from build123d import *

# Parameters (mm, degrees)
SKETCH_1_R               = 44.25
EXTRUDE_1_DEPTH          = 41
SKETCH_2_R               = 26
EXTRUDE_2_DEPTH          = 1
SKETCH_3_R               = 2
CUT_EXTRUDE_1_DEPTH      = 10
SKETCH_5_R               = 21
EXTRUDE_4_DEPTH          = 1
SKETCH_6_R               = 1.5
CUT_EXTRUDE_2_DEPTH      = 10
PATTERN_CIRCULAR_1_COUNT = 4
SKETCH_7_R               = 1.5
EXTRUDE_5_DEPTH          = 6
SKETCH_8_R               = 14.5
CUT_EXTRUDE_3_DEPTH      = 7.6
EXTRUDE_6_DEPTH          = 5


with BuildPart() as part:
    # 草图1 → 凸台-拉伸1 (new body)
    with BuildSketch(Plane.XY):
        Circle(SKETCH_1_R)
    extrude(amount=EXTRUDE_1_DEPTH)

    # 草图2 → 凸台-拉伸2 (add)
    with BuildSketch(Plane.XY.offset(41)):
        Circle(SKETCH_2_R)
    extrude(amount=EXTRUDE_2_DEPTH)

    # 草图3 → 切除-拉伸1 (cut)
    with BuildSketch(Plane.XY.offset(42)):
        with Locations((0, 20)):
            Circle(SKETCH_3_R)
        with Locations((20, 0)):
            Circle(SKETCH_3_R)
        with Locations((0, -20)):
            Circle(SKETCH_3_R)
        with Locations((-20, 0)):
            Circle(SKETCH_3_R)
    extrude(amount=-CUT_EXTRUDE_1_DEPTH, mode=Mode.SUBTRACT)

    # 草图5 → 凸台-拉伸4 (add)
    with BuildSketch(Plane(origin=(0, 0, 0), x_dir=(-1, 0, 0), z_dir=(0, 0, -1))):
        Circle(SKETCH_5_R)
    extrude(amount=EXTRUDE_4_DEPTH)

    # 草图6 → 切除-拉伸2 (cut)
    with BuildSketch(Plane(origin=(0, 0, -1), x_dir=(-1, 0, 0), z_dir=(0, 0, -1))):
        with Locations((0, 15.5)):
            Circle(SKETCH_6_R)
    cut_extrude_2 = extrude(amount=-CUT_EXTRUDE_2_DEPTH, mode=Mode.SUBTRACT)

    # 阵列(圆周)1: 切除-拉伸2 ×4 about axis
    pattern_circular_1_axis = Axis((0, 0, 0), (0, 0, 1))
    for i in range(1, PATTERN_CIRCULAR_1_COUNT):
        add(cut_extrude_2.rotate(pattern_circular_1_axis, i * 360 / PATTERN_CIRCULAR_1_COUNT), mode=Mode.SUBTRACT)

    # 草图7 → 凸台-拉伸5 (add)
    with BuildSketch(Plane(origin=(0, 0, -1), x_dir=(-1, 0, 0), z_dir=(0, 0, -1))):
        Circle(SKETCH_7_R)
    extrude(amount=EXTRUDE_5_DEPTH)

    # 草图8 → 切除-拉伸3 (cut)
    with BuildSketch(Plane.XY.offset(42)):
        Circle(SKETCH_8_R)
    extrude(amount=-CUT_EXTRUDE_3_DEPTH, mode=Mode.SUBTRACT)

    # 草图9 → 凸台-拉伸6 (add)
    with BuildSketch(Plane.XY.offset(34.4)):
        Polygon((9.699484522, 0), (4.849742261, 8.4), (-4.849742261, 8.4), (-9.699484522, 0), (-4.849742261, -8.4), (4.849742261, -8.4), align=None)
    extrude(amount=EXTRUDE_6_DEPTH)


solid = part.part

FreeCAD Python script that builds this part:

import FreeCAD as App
import Part
import Sketcher
Q = App.Units.Quantity


def add_polygon(sketch, points):
    """Adds a closed chain of lines whose ends are joined by coincident constraints."""
    first, n = sketch.GeometryCount, len(points)
    for a, b in zip(points, points[1:] + points[:1]):
        sketch.addGeometry(Part.LineSegment(App.Vector(*a, 0), App.Vector(*b, 0)), False)
    for i in range(n):
        sketch.addConstraint(Sketcher.Constraint("Coincident", first + i, 2, first + (i + 1) % n, 1))

doc = App.newDocument("Part")
params = doc.addObject("Spreadsheet::Sheet", "Params")
for row, (alias, value) in enumerate([
    ("sketch1_diameter", "88.5 mm"),
    ("pad1_length", "41 mm"),
    ("sketch2_diameter", "52 mm"),
    ("pad2_length", "1 mm"),
    ("sketch3_diameter", "4 mm"),
    ("pocket1_length", "10 mm"),
    ("sketch4_diameter", "42 mm"),
    ("pad3_length", "1 mm"),
    ("sketch5_diameter", "3 mm"),
    ("pocket2_length", "10 mm"),
    ("sketch6_diameter", "3 mm"),
    ("pad4_length", "6 mm"),
    ("sketch7_diameter", "29 mm"),
    ("pocket3_length", "7.6 mm"),
    ("pad5_length", "5 mm"),
], start=1):
    params.set(f"A{row}", alias)
    params.set(f"B{row}", "=" + value)
    params.setAlias(f"B{row}", alias)

body = doc.addObject("PartDesign::Body", "Body")

sketch1 = body.newObject("Sketcher::SketchObject", "Sketch")
sketch1.AttachmentSupport = (doc.getObject("XY_Plane"), [""])
sketch1.MapMode = "FlatFace"
sketch1.addGeometry(Part.Circle(App.Vector(0, 0, 0), App.Vector(0, 0, 1), 44), False)
sketch1.addConstraint([
    Sketcher.Constraint("Coincident", 0, 3, -1, 1),
    Sketcher.Constraint("Diameter", 0, 88.5),
])
sketch1.setExpression("Constraints[1]", "Params.sketch1_diameter")
pad1 = body.newObject("PartDesign::Pad", "Pad")
pad1.Profile = sketch1
pad1.setExpression("Length", "Params.pad1_length")

sketch2 = body.newObject("Sketcher::SketchObject", "Sketch001")
sketch2.AttachmentSupport = (doc.getObject("XY_Plane"), [""])
sketch2.MapMode = "FlatFace"
sketch2.AttachmentOffset = App.Placement(App.Vector(0, 0, 41), App.Rotation())
sketch2.addGeometry(Part.Circle(App.Vector(0, 0, 0), App.Vector(0, 0, 1), 26), False)
sketch2.addConstraint([
    Sketcher.Constraint("Coincident", 0, 3, -1, 1),
    Sketcher.Constraint("Diameter", 0, 52.0),
])
sketch2.setExpression("Constraints[1]", "Params.sketch2_diameter")
pad2 = body.newObject("PartDesign::Pad", "Pad001")
pad2.Profile = sketch2
pad2.setExpression("Length", "Params.pad2_length")

sketch3 = body.newObject("Sketcher::SketchObject", "Sketch002")
sketch3.AttachmentSupport = (doc.getObject("XY_Plane"), [""])
sketch3.MapMode = "FlatFace"
sketch3.AttachmentOffset = App.Placement(App.Vector(0, 0, 42), App.Rotation())
sketch3.addGeometry([
    Part.Circle(App.Vector(0, 20, 0), App.Vector(0, 0, 1), 2),
    Part.Circle(App.Vector(20, 0, 0), App.Vector(0, 0, 1), 2),
    Part.Circle(App.Vector(0, -20, 0), App.Vector(0, 0, 1), 2),
    Part.Circle(App.Vector(-20, 0, 0), App.Vector(0, 0, 1), 2),
], False)
sketch3.addConstraint([
    Sketcher.Constraint("Equal", 0, 1),
    Sketcher.Constraint("Equal", 1, 2),
    Sketcher.Constraint("Equal", 2, 3),
    Sketcher.Constraint("Symmetric", 0, 3, 2, 3, -1, 1),
    Sketcher.Constraint("Symmetric", 1, 3, 3, 3, -1, 1),
    Sketcher.Constraint("PointOnObject", 0, 3, -2),
    Sketcher.Constraint("PointOnObject", 1, 3, -1),
    Sketcher.Constraint("Diameter", 0, 4.0),
    Sketcher.Constraint("DistanceY", -1, 1, 0, 3, 20.0),
    Sketcher.Constraint("DistanceX", -1, 1, 1, 3, 20.0),
])
sketch3.setExpression("Constraints[7]", "Params.sketch3_diameter")
pocket1 = body.newObject("PartDesign::Pocket", "Pocket")
pocket1.Profile = sketch3
pocket1.setExpression("Length", "Params.pocket1_length")

sketch4 = body.newObject("Sketcher::SketchObject", "Sketch003")
sketch4.AttachmentSupport = (doc.getObject("XY_Plane"), [""])
sketch4.MapMode = "FlatFace"
sketch4.addGeometry(Part.Circle(App.Vector(0, 0, 0), App.Vector(0, 0, 1), 21), False)
sketch4.addConstraint([
    Sketcher.Constraint("Coincident", 0, 3, -1, 1),
    Sketcher.Constraint("Diameter", 0, 42.0),
])
sketch4.setExpression("Constraints[1]", "Params.sketch4_diameter")
pad3 = body.newObject("PartDesign::Pad", "Pad002")
pad3.Profile = sketch4
pad3.setExpression("Length", "Params.pad3_length")
pad3.Reversed = True

sketch5 = body.newObject("Sketcher::SketchObject", "Sketch004")
sketch5.AttachmentSupport = (doc.getObject("XY_Plane"), [""])
sketch5.MapMode = "FlatFace"
sketch5.AttachmentOffset = App.Placement(App.Vector(0, 0, -1), App.Rotation())
sketch5.addGeometry(Part.Circle(App.Vector(0, 15.5, 0), App.Vector(0, 0, 1), 1.5), False)
sketch5.addConstraint([
    Sketcher.Constraint("PointOnObject", 0, 3, -2),
    Sketcher.Constraint("Diameter", 0, 3.0),
    Sketcher.Constraint("DistanceY", -1, 1, 0, 3, 15.5),
])
sketch5.setExpression("Constraints[1]", "Params.sketch5_diameter")
pocket2 = body.newObject("PartDesign::Pocket", "Pocket001")
pocket2.Profile = sketch5
pocket2.setExpression("Length", "Params.pocket2_length")
pocket2.Reversed = True
doc.recompute()

polarpattern = body.newObject("PartDesign::PolarPattern", "PolarPattern")
polarpattern.Originals = [pocket2]
polarpattern.Axis = (doc.getObject("Z_Axis"), [""])
polarpattern.Angle = 360
polarpattern.Occurrences = 4
body.Tip = polarpattern

sketch6 = body.newObject("Sketcher::SketchObject", "Sketch005")
sketch6.AttachmentSupport = (doc.getObject("XY_Plane"), [""])
sketch6.MapMode = "FlatFace"
sketch6.AttachmentOffset = App.Placement(App.Vector(0, 0, -1), App.Rotation())
sketch6.addGeometry(Part.Circle(App.Vector(0, 0, 0), App.Vector(0, 0, 1), 1.5), False)
sketch6.addConstraint([
    Sketcher.Constraint("Coincident", 0, 3, -1, 1),
    Sketcher.Constraint("Diameter", 0, 3.0),
])
sketch6.setExpression("Constraints[1]", "Params.sketch6_diameter")
pad4 = body.newObject("PartDesign::Pad", "Pad003")
pad4.Profile = sketch6
pad4.setExpression("Length", "Params.pad4_length")
pad4.Reversed = True

sketch7 = body.newObject("Sketcher::SketchObject", "Sketch006")
sketch7.AttachmentSupport = (doc.getObject("XY_Plane"), [""])
sketch7.MapMode = "FlatFace"
sketch7.AttachmentOffset = App.Placement(App.Vector(0, 0, 42), App.Rotation())
sketch7.addGeometry(Part.Circle(App.Vector(0, 0, 0), App.Vector(0, 0, 1), 14), False)
sketch7.addConstraint([
    Sketcher.Constraint("Coincident", 0, 3, -1, 1),
    Sketcher.Constraint("Diameter", 0, 29.0),
])
sketch7.setExpression("Constraints[1]", "Params.sketch7_diameter")
pocket3 = body.newObject("PartDesign::Pocket", "Pocket002")
pocket3.Profile = sketch7
pocket3.setExpression("Length", "Params.pocket3_length")

sketch8 = body.newObject("Sketcher::SketchObject", "Sketch007")
sketch8.AttachmentSupport = (doc.getObject("XY_Plane"), [""])
sketch8.MapMode = "FlatFace"
sketch8.AttachmentOffset = App.Placement(App.Vector(0, 0, 34.4), App.Rotation())
add_polygon(sketch8, [(10, 0), (5, 8), (-5, 8), (-10, 0), (-5, -8), (5, -8)])
sketch8.addConstraint([
    Sketcher.Constraint("Horizontal", 1),
    Sketcher.Constraint("Horizontal", 4),
    Sketcher.Constraint("Symmetric", 0, 2, 3, 2, -1, 1),
    Sketcher.Constraint("Symmetric", 2, 2, 5, 2, -1, 1),
    Sketcher.Constraint("PointOnObject", 2, 2, -1),
    Sketcher.Constraint("Parallel", 2, 5),
    Sketcher.Constraint("Vertical", 1, 2, 3, 2),
    Sketcher.Constraint("Angle", 0, Q("120 deg")),
    Sketcher.Constraint("DistanceY", -1, 1, 0, 2, 8.4),
    Sketcher.Constraint("DistanceX", 1, 2, 1, 1, 9.699485),
])
pad5 = body.newObject("PartDesign::Pad", "Pad004")
pad5.Profile = sketch8
pad5.setExpression("Length", "Params.pad5_length")

doc.recompute()
